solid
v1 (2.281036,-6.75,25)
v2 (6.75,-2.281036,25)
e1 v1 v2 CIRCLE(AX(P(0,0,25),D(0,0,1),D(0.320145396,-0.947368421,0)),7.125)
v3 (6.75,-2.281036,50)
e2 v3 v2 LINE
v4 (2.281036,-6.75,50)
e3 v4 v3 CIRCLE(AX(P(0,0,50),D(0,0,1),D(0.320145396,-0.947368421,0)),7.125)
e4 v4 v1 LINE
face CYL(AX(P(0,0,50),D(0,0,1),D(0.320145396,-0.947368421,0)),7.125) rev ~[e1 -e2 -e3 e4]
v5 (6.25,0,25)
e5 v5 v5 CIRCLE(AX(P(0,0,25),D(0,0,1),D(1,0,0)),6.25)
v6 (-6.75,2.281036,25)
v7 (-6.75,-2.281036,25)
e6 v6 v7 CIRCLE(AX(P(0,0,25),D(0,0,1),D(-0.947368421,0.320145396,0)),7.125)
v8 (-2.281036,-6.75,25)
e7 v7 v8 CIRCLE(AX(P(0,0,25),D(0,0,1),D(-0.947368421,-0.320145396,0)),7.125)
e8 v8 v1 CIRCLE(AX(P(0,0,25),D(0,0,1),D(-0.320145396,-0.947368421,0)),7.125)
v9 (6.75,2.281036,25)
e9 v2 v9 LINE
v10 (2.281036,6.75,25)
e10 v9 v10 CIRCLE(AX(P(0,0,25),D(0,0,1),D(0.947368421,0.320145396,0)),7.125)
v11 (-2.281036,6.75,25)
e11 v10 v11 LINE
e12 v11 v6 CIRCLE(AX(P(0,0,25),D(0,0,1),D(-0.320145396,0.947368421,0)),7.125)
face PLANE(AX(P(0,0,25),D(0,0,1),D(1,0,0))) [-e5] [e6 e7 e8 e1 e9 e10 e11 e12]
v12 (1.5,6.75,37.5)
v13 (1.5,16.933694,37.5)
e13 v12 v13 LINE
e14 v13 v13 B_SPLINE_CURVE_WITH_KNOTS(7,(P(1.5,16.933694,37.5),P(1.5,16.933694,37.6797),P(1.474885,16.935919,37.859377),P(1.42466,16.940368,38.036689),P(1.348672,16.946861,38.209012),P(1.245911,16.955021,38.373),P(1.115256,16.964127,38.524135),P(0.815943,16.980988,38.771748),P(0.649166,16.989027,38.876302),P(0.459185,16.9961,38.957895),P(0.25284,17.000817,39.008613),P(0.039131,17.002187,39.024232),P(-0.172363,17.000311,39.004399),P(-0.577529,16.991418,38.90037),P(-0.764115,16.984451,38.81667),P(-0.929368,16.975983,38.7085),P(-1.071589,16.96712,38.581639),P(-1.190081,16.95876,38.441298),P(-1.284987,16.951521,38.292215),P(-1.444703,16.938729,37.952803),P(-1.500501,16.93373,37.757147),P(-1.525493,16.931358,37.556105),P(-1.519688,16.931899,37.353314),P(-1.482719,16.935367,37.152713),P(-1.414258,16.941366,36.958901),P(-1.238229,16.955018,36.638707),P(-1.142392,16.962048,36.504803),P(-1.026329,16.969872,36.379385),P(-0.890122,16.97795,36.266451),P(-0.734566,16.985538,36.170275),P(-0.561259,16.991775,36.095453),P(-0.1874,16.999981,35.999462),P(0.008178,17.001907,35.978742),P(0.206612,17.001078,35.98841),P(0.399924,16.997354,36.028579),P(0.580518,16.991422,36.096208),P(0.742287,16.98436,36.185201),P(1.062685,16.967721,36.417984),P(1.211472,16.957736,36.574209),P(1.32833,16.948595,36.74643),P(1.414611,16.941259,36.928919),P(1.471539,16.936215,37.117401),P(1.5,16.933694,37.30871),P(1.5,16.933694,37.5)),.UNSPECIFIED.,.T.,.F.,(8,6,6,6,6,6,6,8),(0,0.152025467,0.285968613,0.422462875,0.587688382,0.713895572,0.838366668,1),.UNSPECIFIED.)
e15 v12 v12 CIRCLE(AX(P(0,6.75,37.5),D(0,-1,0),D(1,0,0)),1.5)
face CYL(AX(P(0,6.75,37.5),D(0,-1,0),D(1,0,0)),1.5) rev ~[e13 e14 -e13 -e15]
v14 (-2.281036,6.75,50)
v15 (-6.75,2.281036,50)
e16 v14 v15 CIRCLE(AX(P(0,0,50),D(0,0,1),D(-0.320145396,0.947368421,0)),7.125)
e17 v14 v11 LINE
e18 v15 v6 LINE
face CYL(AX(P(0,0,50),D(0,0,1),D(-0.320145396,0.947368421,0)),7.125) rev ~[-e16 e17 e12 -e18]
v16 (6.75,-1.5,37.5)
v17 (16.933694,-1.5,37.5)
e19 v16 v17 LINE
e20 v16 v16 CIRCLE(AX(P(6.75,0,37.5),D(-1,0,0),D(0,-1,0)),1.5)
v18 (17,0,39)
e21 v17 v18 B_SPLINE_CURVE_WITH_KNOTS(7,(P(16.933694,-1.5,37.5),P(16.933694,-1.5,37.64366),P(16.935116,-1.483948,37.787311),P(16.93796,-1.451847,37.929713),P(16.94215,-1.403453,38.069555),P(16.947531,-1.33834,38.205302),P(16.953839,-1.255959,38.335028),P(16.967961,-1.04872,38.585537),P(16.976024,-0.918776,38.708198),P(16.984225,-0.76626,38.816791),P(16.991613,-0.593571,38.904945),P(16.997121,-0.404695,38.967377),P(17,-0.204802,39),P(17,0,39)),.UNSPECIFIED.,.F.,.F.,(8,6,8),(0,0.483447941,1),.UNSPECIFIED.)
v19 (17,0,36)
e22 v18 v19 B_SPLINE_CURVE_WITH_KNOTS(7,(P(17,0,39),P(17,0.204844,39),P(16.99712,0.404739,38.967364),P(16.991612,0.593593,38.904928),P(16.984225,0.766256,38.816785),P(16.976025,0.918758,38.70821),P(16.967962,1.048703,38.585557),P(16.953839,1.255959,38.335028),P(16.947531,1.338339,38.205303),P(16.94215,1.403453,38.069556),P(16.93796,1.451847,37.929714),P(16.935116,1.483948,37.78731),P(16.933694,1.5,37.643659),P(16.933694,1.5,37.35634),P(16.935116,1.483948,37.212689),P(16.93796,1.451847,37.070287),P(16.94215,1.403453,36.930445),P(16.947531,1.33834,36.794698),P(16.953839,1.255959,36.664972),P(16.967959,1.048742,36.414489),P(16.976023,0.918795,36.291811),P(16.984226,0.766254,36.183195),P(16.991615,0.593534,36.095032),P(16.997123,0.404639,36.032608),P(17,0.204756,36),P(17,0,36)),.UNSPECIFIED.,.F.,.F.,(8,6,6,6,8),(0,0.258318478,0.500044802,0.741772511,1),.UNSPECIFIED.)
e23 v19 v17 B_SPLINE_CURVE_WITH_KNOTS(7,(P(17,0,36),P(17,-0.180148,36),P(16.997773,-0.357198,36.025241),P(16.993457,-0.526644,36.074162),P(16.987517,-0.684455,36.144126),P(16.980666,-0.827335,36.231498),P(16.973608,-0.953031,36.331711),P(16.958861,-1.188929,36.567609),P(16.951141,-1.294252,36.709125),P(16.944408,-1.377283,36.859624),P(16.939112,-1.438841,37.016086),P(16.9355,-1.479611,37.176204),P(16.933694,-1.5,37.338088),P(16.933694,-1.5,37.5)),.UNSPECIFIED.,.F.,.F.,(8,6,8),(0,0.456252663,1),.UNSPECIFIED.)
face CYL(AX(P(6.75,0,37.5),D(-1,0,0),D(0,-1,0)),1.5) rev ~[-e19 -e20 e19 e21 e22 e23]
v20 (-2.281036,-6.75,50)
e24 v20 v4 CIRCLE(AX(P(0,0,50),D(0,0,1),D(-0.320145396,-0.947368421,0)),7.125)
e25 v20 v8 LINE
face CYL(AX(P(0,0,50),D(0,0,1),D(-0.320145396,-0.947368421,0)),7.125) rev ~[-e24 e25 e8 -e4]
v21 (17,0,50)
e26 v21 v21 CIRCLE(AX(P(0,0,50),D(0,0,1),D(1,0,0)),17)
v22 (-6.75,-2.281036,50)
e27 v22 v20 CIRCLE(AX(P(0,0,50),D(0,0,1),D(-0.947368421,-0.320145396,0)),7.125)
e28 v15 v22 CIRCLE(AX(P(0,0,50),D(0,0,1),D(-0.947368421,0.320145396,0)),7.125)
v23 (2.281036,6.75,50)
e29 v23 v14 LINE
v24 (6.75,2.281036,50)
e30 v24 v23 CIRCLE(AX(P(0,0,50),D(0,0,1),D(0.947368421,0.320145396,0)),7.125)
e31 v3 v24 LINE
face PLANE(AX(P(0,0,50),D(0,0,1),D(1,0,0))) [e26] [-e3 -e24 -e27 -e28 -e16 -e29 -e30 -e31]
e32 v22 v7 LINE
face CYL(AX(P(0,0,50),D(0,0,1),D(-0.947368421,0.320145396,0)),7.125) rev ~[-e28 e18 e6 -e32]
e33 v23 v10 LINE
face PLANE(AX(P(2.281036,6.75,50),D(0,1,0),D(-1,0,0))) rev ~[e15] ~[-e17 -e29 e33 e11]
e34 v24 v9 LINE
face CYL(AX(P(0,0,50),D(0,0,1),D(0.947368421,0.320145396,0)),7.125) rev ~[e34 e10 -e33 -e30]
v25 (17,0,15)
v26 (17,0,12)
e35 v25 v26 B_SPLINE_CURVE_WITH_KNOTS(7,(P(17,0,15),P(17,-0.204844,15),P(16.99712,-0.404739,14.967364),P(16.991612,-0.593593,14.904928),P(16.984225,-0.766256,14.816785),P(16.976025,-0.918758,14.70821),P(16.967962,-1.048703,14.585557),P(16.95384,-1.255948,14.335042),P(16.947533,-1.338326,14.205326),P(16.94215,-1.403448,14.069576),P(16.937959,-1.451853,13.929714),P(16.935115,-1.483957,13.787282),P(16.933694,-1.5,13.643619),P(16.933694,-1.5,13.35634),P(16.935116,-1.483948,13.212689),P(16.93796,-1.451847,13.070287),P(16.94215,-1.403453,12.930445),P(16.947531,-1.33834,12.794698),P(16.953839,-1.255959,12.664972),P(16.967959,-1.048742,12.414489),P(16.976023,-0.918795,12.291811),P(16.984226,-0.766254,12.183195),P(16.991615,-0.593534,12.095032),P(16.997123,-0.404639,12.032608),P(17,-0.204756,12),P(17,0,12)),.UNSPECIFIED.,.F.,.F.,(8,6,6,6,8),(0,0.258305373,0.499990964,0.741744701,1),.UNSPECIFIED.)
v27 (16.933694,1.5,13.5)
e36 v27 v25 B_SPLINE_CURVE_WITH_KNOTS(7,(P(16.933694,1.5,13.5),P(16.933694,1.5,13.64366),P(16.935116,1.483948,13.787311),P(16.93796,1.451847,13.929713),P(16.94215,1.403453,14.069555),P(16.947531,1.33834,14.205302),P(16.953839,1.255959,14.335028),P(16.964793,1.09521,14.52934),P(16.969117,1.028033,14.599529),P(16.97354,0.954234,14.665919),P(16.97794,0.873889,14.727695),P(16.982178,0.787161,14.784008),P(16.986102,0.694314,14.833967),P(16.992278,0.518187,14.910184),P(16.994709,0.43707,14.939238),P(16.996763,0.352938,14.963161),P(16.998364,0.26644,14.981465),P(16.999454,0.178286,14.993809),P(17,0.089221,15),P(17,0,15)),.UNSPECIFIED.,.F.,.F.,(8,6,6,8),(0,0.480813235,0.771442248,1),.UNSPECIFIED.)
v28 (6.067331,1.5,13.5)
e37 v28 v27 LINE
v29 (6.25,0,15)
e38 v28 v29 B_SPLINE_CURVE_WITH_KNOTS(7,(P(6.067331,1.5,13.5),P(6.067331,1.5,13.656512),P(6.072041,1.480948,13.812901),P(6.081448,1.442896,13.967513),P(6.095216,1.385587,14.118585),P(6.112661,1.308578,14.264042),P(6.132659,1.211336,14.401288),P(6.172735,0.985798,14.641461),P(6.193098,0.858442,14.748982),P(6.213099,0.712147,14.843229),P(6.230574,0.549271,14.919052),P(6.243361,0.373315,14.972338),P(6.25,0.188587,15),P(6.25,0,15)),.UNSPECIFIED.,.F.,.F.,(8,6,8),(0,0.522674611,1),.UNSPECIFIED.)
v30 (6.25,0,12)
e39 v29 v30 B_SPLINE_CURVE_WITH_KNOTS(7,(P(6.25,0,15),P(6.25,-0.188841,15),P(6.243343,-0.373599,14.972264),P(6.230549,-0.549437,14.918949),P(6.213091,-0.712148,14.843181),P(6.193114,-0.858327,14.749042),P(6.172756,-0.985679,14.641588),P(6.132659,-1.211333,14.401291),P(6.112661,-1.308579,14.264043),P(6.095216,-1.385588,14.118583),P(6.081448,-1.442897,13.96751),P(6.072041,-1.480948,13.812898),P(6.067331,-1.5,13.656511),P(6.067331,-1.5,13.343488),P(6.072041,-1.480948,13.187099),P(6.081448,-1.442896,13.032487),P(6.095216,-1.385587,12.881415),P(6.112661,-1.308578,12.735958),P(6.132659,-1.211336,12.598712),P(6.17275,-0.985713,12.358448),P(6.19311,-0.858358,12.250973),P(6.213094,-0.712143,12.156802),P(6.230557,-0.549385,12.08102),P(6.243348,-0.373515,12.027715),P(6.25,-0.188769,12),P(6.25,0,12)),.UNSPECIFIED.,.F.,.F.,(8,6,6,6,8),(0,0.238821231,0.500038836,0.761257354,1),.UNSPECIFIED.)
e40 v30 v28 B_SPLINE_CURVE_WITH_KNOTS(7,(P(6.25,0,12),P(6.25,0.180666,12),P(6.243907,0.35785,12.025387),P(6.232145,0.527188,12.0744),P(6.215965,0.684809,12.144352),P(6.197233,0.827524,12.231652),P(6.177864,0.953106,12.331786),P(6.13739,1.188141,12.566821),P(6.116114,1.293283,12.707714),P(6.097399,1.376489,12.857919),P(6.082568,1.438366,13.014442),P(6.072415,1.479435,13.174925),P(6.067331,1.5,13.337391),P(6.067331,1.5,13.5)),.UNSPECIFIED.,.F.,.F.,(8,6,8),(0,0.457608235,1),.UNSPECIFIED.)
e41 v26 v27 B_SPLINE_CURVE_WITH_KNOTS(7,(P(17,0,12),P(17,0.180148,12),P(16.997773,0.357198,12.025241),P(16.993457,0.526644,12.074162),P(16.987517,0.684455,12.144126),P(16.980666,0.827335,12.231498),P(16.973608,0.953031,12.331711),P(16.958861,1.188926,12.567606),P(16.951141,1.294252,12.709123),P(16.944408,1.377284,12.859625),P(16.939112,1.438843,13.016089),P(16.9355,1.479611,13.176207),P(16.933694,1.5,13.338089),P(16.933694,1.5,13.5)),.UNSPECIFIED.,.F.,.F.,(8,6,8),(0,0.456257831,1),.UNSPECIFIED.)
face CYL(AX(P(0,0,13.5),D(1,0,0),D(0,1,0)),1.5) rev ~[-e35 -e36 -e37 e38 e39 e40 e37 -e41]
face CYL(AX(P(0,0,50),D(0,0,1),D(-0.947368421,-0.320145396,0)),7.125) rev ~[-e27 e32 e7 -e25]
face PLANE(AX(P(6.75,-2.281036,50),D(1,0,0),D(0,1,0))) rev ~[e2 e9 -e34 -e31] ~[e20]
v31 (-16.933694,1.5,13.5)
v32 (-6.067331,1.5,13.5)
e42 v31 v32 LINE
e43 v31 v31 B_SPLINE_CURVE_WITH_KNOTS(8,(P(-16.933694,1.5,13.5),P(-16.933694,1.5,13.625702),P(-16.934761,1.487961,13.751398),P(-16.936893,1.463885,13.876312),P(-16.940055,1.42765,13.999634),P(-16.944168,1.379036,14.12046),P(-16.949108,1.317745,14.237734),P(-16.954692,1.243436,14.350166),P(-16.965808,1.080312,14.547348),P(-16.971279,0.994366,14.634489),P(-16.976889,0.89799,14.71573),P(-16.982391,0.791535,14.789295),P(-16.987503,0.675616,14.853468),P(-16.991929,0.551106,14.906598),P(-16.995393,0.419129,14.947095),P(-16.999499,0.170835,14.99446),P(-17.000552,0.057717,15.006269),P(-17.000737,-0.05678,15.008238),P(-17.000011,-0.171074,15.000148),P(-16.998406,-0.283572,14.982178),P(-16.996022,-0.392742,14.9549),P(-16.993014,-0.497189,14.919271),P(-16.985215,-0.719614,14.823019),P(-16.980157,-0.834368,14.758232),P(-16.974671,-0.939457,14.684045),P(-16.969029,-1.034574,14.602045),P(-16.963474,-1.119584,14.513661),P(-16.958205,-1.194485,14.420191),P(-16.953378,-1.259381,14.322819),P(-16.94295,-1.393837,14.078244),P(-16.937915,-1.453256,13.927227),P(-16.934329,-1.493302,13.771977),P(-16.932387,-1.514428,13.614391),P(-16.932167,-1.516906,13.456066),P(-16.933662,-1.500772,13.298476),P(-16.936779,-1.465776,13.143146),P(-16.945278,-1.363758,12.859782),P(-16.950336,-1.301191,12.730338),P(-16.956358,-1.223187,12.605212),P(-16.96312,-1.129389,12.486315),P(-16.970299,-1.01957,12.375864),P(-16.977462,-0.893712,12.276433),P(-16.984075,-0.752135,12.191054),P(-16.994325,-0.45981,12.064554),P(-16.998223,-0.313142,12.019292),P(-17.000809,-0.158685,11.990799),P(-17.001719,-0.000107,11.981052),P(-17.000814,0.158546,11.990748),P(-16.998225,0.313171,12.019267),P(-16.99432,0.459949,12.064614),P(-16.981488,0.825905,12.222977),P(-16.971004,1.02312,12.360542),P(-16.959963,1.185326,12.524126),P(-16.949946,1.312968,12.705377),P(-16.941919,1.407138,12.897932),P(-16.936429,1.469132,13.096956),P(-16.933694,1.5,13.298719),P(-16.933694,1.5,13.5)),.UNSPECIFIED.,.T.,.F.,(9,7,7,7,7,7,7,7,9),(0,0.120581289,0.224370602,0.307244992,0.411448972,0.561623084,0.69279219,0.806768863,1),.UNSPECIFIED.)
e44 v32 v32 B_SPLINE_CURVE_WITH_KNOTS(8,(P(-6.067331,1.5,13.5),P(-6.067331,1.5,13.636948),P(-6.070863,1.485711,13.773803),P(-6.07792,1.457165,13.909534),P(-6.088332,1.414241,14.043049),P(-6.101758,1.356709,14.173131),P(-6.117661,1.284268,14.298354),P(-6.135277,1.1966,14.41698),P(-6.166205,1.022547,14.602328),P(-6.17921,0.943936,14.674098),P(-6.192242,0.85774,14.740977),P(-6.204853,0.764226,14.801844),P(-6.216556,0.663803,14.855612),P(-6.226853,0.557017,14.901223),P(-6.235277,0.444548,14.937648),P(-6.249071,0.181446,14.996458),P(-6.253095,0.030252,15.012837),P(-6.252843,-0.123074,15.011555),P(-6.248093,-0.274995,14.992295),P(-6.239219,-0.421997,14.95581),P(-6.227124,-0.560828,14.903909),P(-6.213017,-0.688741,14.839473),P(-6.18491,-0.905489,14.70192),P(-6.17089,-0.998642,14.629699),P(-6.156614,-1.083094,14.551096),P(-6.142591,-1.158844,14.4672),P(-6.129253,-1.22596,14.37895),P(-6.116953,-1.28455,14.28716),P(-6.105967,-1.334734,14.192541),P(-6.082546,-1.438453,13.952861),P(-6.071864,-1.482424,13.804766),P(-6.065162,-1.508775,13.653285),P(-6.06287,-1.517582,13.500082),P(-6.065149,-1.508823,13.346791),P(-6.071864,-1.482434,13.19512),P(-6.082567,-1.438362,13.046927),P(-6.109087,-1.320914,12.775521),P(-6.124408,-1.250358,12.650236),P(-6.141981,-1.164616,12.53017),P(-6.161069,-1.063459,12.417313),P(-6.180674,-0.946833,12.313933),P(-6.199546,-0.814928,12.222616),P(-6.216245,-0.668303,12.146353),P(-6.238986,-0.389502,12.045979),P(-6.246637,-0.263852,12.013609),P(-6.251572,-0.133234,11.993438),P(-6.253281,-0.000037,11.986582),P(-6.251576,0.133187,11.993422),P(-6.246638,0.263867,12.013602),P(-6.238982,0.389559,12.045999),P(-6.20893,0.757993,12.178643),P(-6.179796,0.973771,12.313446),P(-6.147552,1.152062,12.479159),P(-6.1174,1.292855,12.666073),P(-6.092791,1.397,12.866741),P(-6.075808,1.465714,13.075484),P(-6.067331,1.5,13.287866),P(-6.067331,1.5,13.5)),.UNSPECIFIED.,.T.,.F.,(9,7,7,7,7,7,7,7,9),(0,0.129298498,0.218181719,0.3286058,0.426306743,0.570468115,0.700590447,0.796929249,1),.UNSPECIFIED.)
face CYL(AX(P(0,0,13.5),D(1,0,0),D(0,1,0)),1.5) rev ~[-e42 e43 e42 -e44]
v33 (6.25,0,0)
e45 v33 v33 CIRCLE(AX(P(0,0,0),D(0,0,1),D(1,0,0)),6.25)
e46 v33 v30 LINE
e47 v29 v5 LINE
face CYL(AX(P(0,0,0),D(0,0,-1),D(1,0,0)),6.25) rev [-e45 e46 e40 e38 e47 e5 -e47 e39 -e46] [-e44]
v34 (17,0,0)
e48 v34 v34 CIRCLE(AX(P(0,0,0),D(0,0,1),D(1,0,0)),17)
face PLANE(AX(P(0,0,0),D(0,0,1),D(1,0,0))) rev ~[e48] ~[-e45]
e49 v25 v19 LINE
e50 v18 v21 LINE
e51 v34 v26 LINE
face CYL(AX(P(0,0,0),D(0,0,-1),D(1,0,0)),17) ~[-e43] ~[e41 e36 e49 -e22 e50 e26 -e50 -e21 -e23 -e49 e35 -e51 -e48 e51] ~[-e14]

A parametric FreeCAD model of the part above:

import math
import FreeCAD as App
import Part
import Sketcher
from FreeCAD import Vector
Q = App.Units.Quantity

doc = App.newDocument("Part")
body = doc.addObject("PartDesign::Body", "Body")

sketch1 = doc.addObject("Sketcher::SketchObject", "Sketch")
body.addObject(sketch1)
sketch1.AttachmentSupport = (doc.XY_Plane, [""])
sketch1.MapMode = "FlatFace"
sketch1.addGeometry(Part.Circle(Vector(0, 0, 0), Vector(0, 0, 1), 17), False)
sketch1.addConstraint(Sketcher.Constraint("Coincident", 0, 3, -1, 1))
sketch1.addConstraint(Sketcher.Constraint("Diameter", 0, Q("34 mm")))
pad1 = doc.addObject("PartDesign::Pad", "Pad")
body.addObject(pad1)
pad1.Profile = sketch1
pad1.Length = 50

sketch2 = doc.addObject("Sketcher::SketchObject", "Sketch001")
body.addObject(sketch2)
sketch2.AttachmentSupport = (doc.XY_Plane, [""])
sketch2.MapMode = "FlatFace"
sketch2.addGeometry(Part.Circle(Vector(0, 0, 0), Vector(0, 0, 1), 6.25), False)
sketch2.addConstraint(Sketcher.Constraint("Coincident", 0, 3, -1, 1))
sketch2.addConstraint(Sketcher.Constraint("Diameter", 0, Q("12.5 mm")))
pocket1 = doc.addObject("PartDesign::Pocket", "Pocket")
body.addObject(pocket1)
pocket1.Profile = sketch2
pocket1.Length = 25
pocket1.Reversed = True

sketch3 = doc.addObject("Sketcher::SketchObject", "Sketch002")
body.addObject(sketch3)
sketch3.AttachmentSupport = (doc.XY_Plane, [""])
sketch3.MapMode = "FlatFace"
sketch3.AttachmentOffset = App.Placement(Vector(0, 0, 50), App.Rotation())
sketch3.addGeometry(Part.LineSegment(Vector(6.75, -2.281036, 0), Vector(6.75, 2.281036, 0)), False)
sketch3.addGeometry(Part.ArcOfCircle(Part.Circle(Vector(0, 0, 0), Vector(0, 0, 1), 7.125), math.radians(18.671718), math.radians(71.328282)), False)
sketch3.addGeometry(Part.LineSegment(Vector(2.281036, 6.75, 0), Vector(-2.281036, 6.75, 0)), False)
sketch3.addGeometry(Part.ArcOfCircle(Part.Circle(Vector(0, 0, 0), Vector(0, 0, 1), 7.125), math.radians(108.671718), math.radians(161.328282)), False)
sketch3.addGeometry(Part.ArcOfCircle(Part.Circle(Vector(0, 0, 0), Vector(0, 0, 1), 7.125), math.radians(161.328282), math.radians(198.671718)), False)
sketch3.addGeometry(Part.ArcOfCircle(Part.Circle(Vector(0, 0, 0), Vector(0, 0, 1), 7.125), math.radians(-161.328282), math.radians(-108.671718)), False)
sketch3.addGeometry(Part.ArcOfCircle(Part.Circle(Vector(0, 0, 0), Vector(0, 0, 1), 7.125), math.radians(-108.671718), math.radians(-71.328282)), False)
sketch3.addGeometry(Part.ArcOfCircle(Part.Circle(Vector(0, 0, 0), Vector(0, 0, 1), 7.125), math.radians(-71.328282), math.radians(-18.671718)), False)
sketch3.addConstraint(Sketcher.Constraint("Coincident", 0, 2, 1, 1))
sketch3.addConstraint(Sketcher.Constraint("Coincident", 1, 2, 2, 1))
sketch3.addConstraint(Sketcher.Constraint("Coincident", 2, 2, 3, 1))
sketch3.addConstraint(Sketcher.Constraint("Tangent", 3, 2, 4, 1))
sketch3.addConstraint(Sketcher.Constraint("Tangent", 4, 2, 5, 1))
sketch3.addConstraint(Sketcher.Constraint("Tangent", 5, 2, 6, 1))
sketch3.addConstraint(Sketcher.Constraint("Tangent", 6, 2, 7, 1))
sketch3.addConstraint(Sketcher.Constraint("Coincident", 7, 2, 0, 1))
sketch3.addConstraint(Sketcher.Constraint("Vertical", 0))
sketch3.addConstraint(Sketcher.Constraint("Horizontal", 2))
sketch3.addConstraint(Sketcher.Constraint("Coincident", 1, 3, -1, 1))
sketch3.addConstraint(Sketcher.Constraint("Coincident", 3, 3, -1, 1))
sketch3.addConstraint(Sketcher.Constraint("Coincident", 5, 3, -1, 1))
sketch3.addConstraint(Sketcher.Constraint("Coincident", 7, 3, -1, 1))
sketch3.addConstraint(Sketcher.Constraint("Equal", 1, 3))
sketch3.addConstraint(Sketcher.Constraint("Horizontal", 0, 2, 3, 2))
sketch3.addConstraint(Sketcher.Constraint("Horizontal", 5, 2, 6, 2))
sketch3.addConstraint(Sketcher.Constraint("Horizontal", 4, 2, 7, 2))
sketch3.addConstraint(Sketcher.Constraint("Vertical", 2, 2, 5, 2))
sketch3.addConstraint(Sketcher.Constraint("Equal", 2, 0))
sketch3.addConstraint(Sketcher.Constraint("Radius", 1, Q("7.125 mm")))
sketch3.addConstraint(Sketcher.Constraint("DistanceX", -1, 1, 0, 2, Q("6.75 mm")))
pocket2 = doc.addObject("PartDesign::Pocket", "Pocket001")
body.addObject(pocket2)
pocket2.Profile = sketch3
pocket2.Length = 25

sketch4 = doc.addObject("Sketcher::SketchObject", "Sketch003")
body.addObject(sketch4)
sketch4.AttachmentSupport = (doc.YZ_Plane, [""])
sketch4.MapMode = "FlatFace"
sketch4.AttachmentOffset = App.Placement(Vector(0, 0, 6.75), App.Rotation())
sketch4.addGeometry(Part.Circle(Vector(0, 37.5, 0), Vector(0, 0, 1), 1.5), False)
sketch4.addConstraint(Sketcher.Constraint("PointOnObject", 0, 3, -2))
sketch4.addConstraint(Sketcher.Constraint("Diameter", 0, Q("3 mm")))
sketch4.addConstraint(Sketcher.Constraint("DistanceY", -1, 1, 0, 3, Q("37.5 mm")))
pocket3 = doc.addObject("PartDesign::Pocket", "Pocket002")
body.addObject(pocket3)
pocket3.Profile = sketch4
pocket3.Length = 25
pocket3.Reversed = True

sketch5 = doc.addObject("Sketcher::SketchObject", "Sketch004")
body.addObject(sketch5)
sketch5.AttachmentSupport = (doc.XZ_Plane, [""])
sketch5.MapMode = "FlatFace"
sketch5.AttachmentOffset = App.Placement(Vector(0, 0, -6.75), App.Rotation())
sketch5.addGeometry(Part.Circle(Vector(0, 37.5, 0), Vector(0, 0, 1), 1.5), False)
sketch5.addConstraint(Sketcher.Constraint("PointOnObject", 0, 3, -2))
sketch5.addConstraint(Sketcher.Constraint("Diameter", 0, Q("3 mm")))
sketch5.addConstraint(Sketcher.Constraint("DistanceY", -1, 1, 0, 3, Q("37.5 mm")))
pocket4 = doc.addObject("PartDesign::Pocket", "Pocket003")
body.addObject(pocket4)
pocket4.Profile = sketch5
pocket4.Length = 25

sketch6 = doc.addObject("Sketcher::SketchObject", "Sketch005")
body.addObject(sketch6)
sketch6.AttachmentSupport = (doc.YZ_Plane, [""])
sketch6.MapMode = "FlatFace"
sketch6.addGeometry(Part.Circle(Vector(0, 13.5, 0), Vector(0, 0, 1), 1.5), False)
sketch6.addConstraint(Sketcher.Constraint("PointOnObject", 0, 3, -2))
sketch6.addConstraint(Sketcher.Constraint("Diameter", 0, Q("3 mm")))
sketch6.addConstraint(Sketcher.Constraint("DistanceY", -1, 1, 0, 3, Q("13.5 mm")))
pocket5 = doc.addObject("PartDesign::Pocket", "Pocket004")
body.addObject(pocket5)
pocket5.Profile = sketch6
pocket5.Length = 100
pocket5.Midplane = True

doc.recompute()
